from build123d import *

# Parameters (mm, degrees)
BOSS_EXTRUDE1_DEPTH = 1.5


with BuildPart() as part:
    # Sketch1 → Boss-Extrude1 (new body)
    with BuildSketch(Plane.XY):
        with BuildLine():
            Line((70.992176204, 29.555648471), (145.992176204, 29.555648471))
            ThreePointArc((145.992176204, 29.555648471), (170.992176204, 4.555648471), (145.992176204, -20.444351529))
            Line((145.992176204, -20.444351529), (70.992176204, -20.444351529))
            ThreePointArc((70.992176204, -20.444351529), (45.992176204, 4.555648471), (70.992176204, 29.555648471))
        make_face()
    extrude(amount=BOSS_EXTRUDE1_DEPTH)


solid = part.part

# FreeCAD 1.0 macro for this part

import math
import FreeCAD as App
import Part
import Sketcher

doc = App.newDocument("Part")
body = doc.addObject("PartDesign::Body", "Body")

# Sketch on XY plane
sketch1 = body.newObject("Sketcher::SketchObject", "Sketch")
sketch1.AttachmentSupport = (doc.getObject("XY_Plane"), [""])
sketch1.MapMode = "FlatFace"
sketch1.addGeometry(Part.LineSegment(App.Vector(146, 30, 0), App.Vector(71, 30, 0)), False)
sketch1.addGeometry(Part.ArcOfCircle(Part.Circle(App.Vector(71, 5, 0), App.Vector(0, 0, 1), 25), math.radians(90), math.radians(270)), False)
sketch1.addGeometry(Part.LineSegment(App.Vector(71, -20, 0), App.Vector(146, -20, 0)), False)
sketch1.addGeometry(Part.ArcOfCircle(Part.Circle(App.Vector(146, 5, 0), App.Vector(0, 0, 1), 25), math.radians(-90), math.radians(90)), False)
sketch1.addConstraint(Sketcher.Constraint("Tangent", 0, 2, 1, 1))
sketch1.addConstraint(Sketcher.Constraint("Tangent", 1, 2, 2, 1))
sketch1.addConstraint(Sketcher.Constraint("Tangent", 2, 2, 3, 1))
sketch1.addConstraint(Sketcher.Constraint("Tangent", 3, 2, 0, 1))
sketch1.addConstraint(Sketcher.Constraint("Horizontal", 0))
sketch1.addConstraint(Sketcher.Constraint("Horizontal", 2))
sketch1.addConstraint(Sketcher.Constraint("Radius", 1, 25.0))
sketch1.addConstraint(Sketcher.Constraint("DistanceX", 0, 2, 0, 1, 75.0))
sketch1.addConstraint(Sketcher.Constraint("DistanceY", -1, 1, 1, 3, 4.555648))
sketch1.addConstraint(Sketcher.Constraint("DistanceX", -1, 1, 1, 3, 70.992176))
pad1 = body.newObject("PartDesign::Pad", "Pad")
pad1.Profile = sketch1
pad1.Length = 1.5

doc.recompute()
